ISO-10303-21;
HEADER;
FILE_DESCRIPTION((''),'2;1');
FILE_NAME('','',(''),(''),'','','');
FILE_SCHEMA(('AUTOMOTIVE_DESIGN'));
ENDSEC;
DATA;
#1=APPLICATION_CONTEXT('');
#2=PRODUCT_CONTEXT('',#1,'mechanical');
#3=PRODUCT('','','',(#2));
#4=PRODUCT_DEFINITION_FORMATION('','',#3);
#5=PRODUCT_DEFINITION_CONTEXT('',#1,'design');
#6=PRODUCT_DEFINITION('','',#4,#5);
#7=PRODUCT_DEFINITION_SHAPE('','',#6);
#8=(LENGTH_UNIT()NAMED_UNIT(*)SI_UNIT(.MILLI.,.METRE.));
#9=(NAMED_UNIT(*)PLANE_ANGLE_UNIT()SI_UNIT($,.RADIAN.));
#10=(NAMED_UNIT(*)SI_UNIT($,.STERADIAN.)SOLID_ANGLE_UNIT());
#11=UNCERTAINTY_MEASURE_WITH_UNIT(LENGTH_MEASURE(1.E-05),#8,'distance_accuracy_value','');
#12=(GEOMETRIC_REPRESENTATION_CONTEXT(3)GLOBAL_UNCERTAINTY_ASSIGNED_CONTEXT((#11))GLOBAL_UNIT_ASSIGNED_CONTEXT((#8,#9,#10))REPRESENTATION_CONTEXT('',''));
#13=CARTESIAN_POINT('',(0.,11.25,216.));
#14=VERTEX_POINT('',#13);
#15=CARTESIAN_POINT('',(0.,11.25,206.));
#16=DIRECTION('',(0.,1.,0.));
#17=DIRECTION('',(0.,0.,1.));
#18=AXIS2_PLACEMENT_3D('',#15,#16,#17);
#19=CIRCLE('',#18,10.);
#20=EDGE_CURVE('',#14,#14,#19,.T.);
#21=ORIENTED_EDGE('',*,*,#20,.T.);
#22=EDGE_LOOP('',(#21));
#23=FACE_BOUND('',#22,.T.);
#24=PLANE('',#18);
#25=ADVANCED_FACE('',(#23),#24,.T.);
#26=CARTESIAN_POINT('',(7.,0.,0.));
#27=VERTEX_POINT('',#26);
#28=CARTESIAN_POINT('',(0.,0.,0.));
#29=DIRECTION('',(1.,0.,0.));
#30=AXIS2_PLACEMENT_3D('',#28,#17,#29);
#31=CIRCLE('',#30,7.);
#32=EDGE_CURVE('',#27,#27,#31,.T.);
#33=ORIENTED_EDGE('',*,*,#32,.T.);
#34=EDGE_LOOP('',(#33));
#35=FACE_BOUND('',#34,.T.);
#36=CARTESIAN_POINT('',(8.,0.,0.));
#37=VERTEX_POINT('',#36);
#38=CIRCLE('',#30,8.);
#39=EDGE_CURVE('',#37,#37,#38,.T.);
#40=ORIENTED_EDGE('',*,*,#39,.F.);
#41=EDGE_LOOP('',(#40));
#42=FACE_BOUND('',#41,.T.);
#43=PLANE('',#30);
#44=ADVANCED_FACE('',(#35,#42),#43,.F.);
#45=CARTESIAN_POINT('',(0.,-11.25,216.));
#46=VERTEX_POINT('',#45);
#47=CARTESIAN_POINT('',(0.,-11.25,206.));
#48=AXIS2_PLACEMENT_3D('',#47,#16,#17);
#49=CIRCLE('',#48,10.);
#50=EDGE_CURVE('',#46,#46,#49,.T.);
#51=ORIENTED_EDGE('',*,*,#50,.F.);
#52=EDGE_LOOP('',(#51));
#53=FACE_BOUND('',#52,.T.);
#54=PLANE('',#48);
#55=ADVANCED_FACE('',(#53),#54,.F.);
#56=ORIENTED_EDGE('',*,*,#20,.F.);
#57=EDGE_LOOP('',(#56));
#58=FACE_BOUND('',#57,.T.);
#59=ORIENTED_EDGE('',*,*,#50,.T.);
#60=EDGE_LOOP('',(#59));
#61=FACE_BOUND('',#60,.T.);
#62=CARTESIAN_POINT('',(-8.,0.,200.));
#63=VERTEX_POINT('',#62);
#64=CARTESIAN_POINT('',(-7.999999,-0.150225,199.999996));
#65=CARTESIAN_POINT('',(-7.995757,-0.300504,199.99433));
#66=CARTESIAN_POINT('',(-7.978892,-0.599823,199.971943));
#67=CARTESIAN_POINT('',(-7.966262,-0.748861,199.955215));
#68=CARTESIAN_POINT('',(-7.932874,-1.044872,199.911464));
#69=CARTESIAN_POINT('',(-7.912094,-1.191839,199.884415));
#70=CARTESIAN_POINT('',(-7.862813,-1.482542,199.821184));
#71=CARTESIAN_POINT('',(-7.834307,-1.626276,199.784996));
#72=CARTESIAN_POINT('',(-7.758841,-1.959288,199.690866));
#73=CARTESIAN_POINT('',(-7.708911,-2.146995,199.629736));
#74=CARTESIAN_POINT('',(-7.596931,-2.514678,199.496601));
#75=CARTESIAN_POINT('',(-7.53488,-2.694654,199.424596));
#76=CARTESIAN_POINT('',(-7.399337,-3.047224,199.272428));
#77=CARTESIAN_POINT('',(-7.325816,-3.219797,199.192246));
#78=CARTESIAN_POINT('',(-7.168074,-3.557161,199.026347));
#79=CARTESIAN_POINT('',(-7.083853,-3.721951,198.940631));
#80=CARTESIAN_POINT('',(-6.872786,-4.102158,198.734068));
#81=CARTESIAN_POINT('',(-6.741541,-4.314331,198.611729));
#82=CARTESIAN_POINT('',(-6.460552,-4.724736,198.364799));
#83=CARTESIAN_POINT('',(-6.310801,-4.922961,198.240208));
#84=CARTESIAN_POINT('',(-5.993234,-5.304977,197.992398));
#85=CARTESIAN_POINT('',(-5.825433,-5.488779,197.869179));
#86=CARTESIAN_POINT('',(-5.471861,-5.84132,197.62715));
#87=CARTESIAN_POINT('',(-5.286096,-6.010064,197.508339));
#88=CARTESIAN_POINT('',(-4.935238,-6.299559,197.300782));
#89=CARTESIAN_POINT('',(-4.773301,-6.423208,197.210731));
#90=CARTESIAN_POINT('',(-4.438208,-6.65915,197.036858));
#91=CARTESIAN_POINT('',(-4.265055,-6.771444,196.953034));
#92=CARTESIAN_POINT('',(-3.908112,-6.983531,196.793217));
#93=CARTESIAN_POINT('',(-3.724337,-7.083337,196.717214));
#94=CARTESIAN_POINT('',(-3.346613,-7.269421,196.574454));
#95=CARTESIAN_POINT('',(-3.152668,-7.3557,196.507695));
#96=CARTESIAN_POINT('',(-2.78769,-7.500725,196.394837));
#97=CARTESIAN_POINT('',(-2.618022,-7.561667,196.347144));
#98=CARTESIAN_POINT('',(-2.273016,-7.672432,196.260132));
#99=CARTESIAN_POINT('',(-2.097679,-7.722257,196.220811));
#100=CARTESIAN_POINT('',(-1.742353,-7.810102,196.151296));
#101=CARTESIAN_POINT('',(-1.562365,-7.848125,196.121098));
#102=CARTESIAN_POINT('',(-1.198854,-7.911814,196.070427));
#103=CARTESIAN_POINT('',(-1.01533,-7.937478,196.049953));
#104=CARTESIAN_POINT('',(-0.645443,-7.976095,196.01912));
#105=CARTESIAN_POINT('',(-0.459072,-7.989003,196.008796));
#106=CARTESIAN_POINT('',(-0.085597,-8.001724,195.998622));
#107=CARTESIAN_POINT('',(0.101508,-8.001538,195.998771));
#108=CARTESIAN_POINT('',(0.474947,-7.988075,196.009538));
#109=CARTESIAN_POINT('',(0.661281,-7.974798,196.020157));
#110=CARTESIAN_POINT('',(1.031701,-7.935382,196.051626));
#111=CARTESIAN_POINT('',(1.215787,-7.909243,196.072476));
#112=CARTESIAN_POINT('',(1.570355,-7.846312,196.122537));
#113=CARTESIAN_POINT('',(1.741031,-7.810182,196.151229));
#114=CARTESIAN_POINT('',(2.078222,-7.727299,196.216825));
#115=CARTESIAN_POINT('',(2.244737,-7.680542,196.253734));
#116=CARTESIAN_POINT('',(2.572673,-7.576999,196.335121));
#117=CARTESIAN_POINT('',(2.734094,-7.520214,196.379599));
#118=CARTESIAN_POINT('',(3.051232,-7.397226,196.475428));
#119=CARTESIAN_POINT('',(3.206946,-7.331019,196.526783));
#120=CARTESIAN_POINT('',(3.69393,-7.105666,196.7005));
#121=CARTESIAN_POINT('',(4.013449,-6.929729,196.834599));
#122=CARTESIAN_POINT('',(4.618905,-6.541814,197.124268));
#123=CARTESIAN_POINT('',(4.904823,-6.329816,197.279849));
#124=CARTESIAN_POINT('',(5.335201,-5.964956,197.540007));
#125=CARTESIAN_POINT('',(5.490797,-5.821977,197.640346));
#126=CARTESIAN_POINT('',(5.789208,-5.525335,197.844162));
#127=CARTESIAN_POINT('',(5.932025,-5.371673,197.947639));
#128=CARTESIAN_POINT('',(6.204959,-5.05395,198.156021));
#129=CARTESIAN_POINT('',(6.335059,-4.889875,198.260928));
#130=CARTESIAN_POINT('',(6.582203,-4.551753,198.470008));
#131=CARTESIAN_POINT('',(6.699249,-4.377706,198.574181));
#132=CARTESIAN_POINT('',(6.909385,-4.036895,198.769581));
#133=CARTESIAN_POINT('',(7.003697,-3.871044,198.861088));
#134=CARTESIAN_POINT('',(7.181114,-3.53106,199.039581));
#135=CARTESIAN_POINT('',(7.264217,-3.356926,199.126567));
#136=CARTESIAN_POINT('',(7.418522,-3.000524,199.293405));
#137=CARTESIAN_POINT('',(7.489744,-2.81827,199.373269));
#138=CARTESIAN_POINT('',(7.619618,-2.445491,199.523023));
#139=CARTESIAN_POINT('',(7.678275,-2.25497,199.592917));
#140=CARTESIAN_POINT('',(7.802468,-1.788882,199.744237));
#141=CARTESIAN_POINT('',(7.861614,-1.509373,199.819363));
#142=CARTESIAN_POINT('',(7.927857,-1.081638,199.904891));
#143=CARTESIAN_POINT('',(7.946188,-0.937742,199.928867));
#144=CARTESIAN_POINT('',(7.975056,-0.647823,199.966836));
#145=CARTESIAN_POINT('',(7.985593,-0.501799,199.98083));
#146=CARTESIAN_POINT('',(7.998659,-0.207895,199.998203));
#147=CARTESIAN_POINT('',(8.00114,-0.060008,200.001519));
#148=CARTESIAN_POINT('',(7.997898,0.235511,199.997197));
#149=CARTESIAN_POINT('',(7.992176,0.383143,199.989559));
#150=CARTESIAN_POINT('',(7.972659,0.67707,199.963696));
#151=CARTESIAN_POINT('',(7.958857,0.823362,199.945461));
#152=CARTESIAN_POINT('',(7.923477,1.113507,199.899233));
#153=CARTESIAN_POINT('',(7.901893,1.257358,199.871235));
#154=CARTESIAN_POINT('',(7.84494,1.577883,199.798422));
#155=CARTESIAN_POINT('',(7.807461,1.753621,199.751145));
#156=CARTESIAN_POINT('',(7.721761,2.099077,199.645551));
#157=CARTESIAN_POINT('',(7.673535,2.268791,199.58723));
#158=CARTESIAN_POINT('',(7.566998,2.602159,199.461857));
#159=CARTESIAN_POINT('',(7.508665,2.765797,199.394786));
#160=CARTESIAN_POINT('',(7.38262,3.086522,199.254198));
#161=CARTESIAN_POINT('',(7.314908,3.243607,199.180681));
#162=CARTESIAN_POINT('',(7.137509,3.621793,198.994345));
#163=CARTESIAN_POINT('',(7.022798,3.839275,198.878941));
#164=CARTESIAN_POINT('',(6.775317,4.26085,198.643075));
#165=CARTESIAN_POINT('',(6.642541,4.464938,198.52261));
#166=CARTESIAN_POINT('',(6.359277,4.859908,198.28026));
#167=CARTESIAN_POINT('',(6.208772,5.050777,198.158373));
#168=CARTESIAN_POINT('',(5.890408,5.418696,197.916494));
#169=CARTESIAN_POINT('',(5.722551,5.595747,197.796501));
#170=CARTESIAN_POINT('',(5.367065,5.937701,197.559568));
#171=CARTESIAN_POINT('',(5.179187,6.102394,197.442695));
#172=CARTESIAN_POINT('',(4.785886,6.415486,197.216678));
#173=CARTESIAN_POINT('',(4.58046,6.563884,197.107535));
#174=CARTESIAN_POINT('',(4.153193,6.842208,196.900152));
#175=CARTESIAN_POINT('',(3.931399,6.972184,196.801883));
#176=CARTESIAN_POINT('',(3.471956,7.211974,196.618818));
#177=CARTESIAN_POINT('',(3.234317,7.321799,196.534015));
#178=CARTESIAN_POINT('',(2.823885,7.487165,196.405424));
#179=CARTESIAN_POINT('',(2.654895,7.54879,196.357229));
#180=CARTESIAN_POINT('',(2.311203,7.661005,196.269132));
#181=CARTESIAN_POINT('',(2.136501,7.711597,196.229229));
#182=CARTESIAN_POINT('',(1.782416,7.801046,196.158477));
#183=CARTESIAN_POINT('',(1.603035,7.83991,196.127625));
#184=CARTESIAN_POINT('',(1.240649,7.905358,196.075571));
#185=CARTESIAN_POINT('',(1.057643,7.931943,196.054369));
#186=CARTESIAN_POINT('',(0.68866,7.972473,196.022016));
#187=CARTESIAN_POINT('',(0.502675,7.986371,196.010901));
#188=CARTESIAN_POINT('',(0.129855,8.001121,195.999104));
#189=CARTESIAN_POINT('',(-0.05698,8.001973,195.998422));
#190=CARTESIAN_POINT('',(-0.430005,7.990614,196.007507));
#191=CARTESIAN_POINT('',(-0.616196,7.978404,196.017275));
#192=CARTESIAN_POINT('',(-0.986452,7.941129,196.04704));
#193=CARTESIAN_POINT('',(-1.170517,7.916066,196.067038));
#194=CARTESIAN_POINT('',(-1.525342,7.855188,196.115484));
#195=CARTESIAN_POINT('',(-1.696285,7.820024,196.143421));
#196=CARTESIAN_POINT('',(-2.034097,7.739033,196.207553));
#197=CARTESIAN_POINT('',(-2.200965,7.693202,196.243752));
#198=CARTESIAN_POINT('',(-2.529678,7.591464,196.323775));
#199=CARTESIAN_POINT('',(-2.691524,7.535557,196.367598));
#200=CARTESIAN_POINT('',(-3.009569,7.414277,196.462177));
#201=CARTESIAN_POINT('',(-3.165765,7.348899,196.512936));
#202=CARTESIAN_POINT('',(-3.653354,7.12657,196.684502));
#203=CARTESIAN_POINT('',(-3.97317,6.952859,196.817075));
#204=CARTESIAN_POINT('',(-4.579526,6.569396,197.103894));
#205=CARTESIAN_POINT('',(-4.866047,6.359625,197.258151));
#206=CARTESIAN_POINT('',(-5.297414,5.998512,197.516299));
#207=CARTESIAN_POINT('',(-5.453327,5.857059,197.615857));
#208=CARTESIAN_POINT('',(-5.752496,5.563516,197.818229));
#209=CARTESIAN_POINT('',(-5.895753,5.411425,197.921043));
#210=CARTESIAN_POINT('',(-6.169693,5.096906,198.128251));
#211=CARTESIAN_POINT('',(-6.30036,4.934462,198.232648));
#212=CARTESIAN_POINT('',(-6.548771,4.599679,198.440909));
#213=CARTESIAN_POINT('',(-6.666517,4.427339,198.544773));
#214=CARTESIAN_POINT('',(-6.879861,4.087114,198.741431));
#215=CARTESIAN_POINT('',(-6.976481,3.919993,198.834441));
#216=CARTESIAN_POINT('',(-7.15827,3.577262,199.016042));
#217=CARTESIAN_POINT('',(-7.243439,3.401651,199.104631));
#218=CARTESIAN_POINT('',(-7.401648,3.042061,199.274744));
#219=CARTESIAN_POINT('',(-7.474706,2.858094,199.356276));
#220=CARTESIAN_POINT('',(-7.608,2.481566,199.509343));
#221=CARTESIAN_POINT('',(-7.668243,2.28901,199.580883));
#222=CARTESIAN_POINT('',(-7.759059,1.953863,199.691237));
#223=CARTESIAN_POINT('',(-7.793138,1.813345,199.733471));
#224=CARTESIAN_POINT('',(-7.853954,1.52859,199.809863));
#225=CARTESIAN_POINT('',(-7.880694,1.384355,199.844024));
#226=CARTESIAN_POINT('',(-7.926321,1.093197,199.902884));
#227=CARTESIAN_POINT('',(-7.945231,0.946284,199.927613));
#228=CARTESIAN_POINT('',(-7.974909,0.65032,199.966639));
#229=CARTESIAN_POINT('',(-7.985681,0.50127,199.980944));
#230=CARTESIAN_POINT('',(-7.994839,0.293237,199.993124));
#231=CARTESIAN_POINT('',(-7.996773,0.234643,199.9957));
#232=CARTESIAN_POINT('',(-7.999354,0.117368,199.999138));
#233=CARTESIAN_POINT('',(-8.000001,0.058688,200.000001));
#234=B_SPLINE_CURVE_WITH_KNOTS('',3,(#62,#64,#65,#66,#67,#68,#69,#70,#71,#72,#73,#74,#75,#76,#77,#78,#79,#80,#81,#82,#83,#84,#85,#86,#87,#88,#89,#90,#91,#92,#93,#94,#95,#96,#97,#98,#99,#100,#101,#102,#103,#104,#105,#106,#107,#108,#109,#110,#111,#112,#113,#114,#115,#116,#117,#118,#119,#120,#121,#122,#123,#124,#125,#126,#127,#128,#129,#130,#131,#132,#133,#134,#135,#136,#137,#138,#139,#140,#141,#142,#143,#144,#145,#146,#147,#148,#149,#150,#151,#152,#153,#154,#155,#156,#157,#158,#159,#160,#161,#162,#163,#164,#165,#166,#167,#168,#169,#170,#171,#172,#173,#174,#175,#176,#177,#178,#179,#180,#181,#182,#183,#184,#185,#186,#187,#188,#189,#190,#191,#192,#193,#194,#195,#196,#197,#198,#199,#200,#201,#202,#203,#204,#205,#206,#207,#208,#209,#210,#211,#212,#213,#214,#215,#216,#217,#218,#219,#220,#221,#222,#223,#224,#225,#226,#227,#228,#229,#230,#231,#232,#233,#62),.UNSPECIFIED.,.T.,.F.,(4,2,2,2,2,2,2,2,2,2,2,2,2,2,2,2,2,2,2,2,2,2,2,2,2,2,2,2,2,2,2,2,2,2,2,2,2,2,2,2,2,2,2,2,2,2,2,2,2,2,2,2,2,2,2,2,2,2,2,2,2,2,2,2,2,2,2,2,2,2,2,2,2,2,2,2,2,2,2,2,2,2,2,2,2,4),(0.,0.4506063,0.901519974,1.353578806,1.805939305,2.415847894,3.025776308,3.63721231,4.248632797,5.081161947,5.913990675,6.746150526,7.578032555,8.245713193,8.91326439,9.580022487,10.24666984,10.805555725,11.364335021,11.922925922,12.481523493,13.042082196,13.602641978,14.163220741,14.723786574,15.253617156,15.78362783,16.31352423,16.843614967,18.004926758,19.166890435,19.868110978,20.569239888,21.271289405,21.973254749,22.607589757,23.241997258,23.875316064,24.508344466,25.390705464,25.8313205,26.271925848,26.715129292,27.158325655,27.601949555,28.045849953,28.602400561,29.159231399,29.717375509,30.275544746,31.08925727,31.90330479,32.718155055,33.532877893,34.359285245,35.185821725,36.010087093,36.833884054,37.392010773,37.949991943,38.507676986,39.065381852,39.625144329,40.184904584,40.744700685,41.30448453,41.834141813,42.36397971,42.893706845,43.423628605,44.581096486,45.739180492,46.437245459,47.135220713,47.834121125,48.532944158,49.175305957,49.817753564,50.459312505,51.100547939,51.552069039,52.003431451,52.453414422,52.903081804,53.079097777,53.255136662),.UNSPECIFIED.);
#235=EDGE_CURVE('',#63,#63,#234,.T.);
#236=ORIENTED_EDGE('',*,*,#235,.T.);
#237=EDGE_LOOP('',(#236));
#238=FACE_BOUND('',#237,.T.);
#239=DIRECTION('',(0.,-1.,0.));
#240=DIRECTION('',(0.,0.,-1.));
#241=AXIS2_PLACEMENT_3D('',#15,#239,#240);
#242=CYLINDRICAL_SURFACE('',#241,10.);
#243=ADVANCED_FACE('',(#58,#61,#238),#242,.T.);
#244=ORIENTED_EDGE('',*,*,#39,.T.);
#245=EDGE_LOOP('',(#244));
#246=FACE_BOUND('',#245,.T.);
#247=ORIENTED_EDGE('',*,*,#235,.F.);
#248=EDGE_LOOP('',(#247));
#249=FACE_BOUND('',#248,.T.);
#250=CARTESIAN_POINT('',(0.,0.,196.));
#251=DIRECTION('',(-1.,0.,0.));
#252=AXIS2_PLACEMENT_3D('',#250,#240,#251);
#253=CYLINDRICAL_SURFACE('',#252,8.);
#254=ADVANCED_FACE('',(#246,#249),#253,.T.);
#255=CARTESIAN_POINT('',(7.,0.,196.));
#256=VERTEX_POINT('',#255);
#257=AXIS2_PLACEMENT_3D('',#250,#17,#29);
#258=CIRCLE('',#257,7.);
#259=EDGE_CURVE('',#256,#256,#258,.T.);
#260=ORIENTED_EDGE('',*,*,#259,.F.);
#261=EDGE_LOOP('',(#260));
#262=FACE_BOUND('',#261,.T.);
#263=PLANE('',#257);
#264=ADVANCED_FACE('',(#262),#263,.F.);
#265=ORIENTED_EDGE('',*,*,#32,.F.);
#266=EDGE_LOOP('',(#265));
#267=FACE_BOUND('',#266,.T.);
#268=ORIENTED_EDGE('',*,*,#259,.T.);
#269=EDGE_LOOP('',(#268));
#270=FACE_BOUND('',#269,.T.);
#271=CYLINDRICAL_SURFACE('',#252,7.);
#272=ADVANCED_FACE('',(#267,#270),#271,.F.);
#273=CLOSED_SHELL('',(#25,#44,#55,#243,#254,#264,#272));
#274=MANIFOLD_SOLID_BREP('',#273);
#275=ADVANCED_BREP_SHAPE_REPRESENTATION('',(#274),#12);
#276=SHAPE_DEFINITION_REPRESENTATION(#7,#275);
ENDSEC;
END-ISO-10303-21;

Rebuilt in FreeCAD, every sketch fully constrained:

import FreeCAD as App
import Part
import Sketcher

V = App.Vector

doc = App.newDocument("Part")
body = doc.addObject("PartDesign::Body", "Body")

sketch1 = body.newObject("Sketcher::SketchObject", "Sketch")
sketch1.AttachmentSupport = (doc.getObject("XY_Plane"), [""])
sketch1.MapMode = "FlatFace"
sketch1.addGeometry([
    Part.Circle(V(0, 0, 0), V(0, 0, 1), 8),
    Part.Circle(V(0, 0, 0), V(0, 0, 1), 7),
], False)
sketch1.addConstraint([
    Sketcher.Constraint("Coincident", 0, 3, -1, 1),
    Sketcher.Constraint("Coincident", 1, 3, -1, 1),
    Sketcher.Constraint("Diameter", 0, 16.0),
    Sketcher.Constraint("Diameter", 1, 14.0),
])
pad1 = body.newObject("PartDesign::Pad", "Pad")
pad1.Profile = sketch1
pad1.Length = 196

sketch2 = body.newObject("Sketcher::SketchObject", "Sketch001")
sketch2.AttachmentSupport = (doc.getObject("XY_Plane"), [""])
sketch2.MapMode = "FlatFace"
sketch2.AttachmentOffset = App.Placement(V(0, 0, 196), App.Rotation())
sketch2.addGeometry(Part.Circle(V(0, 0, 0), V(0, 0, 1), 8), False)
sketch2.addConstraint([
    Sketcher.Constraint("Coincident", 0, 3, -1, 1),
    Sketcher.Constraint("Diameter", 0, 16.0),
])
pad2 = body.newObject("PartDesign::Pad", "Pad001")
pad2.Profile = sketch2
pad2.Length = 4

sketch3 = body.newObject("Sketcher::SketchObject", "Sketch002")
sketch3.AttachmentSupport = (doc.getObject("XZ_Plane"), [""])
sketch3.MapMode = "FlatFace"
sketch3.addGeometry(Part.Circle(V(0, 206, 0), V(0, 0, 1), 10), False)
sketch3.addConstraint([
    Sketcher.Constraint("PointOnObject", 0, 3, -2),
    Sketcher.Constraint("Diameter", 0, 20.0),
    Sketcher.Constraint("DistanceY", -1, 1, 0, 3, 206.0),
])
pad3 = body.newObject("PartDesign::Pad", "Pad002")
pad3.Profile = sketch3
pad3.Length = 22.5
pad3.Midplane = True

doc.recompute()
